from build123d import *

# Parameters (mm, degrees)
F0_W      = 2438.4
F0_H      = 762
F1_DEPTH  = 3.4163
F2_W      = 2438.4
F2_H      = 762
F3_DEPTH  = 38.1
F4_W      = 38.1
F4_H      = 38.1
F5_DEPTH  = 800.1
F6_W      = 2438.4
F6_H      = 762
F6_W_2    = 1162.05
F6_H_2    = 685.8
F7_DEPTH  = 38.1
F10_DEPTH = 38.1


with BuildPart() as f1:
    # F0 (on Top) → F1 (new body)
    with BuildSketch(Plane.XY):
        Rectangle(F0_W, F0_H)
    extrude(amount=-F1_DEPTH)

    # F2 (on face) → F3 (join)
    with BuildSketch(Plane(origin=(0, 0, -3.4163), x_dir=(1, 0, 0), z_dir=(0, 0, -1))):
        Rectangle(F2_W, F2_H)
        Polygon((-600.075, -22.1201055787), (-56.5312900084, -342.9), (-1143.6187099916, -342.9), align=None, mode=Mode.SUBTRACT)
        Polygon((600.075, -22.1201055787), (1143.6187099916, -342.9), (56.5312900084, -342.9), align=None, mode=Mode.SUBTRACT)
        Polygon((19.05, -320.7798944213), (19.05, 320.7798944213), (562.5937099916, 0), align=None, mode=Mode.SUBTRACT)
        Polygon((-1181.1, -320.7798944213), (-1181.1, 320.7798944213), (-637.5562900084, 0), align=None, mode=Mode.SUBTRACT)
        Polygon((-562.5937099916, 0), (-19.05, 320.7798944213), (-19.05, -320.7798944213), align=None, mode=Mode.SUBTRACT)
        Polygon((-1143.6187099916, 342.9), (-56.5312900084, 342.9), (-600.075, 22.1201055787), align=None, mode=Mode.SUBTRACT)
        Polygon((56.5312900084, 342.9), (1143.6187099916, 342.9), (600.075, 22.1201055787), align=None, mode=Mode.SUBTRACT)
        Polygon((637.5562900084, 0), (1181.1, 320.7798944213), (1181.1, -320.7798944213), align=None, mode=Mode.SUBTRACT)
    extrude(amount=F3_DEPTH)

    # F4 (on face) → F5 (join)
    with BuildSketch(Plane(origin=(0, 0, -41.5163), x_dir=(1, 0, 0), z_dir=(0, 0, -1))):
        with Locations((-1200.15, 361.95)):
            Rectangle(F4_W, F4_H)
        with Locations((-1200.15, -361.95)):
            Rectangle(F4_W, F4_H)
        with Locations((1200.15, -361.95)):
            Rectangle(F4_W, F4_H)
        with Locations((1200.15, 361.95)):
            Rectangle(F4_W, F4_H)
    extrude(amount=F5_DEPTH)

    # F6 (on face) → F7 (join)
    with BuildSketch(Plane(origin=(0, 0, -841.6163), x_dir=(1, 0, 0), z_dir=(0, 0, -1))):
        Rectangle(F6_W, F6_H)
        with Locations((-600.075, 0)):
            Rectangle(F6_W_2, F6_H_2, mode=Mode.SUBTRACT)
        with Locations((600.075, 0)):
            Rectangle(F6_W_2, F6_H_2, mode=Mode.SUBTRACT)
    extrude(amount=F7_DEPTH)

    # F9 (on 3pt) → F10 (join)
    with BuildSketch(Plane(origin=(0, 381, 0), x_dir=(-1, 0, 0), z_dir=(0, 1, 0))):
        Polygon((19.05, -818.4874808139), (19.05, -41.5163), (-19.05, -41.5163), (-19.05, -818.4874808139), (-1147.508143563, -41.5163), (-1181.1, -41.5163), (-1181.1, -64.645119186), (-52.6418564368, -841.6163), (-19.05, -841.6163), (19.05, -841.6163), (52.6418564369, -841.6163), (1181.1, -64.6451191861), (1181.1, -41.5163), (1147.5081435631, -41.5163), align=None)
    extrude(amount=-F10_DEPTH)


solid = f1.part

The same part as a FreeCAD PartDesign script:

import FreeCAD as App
import Part
import Sketcher
from FreeCAD import Vector
Q = App.Units.Quantity

doc = App.newDocument("Part")
body = doc.addObject("PartDesign::Body", "Body")

# Sketch on XY plane
sketch1 = body.newObject("Sketcher::SketchObject", "Sketch")
sketch1.AttachmentSupport = (doc.getObject("XY_Plane"), [""])
sketch1.MapMode = "FlatFace"
sketch1.addGeometry([
    Part.LineSegment(Vector(-1219, 381, 0), Vector(-1219, -381, 0)),
    Part.LineSegment(Vector(-1219, -381, 0), Vector(1219, -381, 0)),
    Part.LineSegment(Vector(1219, -381, 0), Vector(1219, 381, 0)),
    Part.LineSegment(Vector(1219, 381, 0), Vector(-1219, 381, 0)),
], False)
sketch1.addConstraint([
    Sketcher.Constraint("Coincident", 0, 2, 1, 1),
    Sketcher.Constraint("Coincident", 1, 2, 2, 1),
    Sketcher.Constraint("Coincident", 2, 2, 3, 1),
    Sketcher.Constraint("Coincident", 3, 2, 0, 1),
    Sketcher.Constraint("Vertical", 0),
    Sketcher.Constraint("Horizontal", 1),
    Sketcher.Constraint("Vertical", 2),
    Sketcher.Constraint("Horizontal", 3),
    Sketcher.Constraint("Symmetric", 0, 2, 2, 2, -1, 1),
    Sketcher.Constraint("DistanceX", 1, 1, 1, 2, Q("96 in")),
    Sketcher.Constraint("DistanceY", 0, 2, 0, 1, Q("30 in")),
])
pad1 = body.newObject("PartDesign::Pad", "Pad")
pad1.Profile = sketch1
pad1.Length = Q("0.1345 in")
pad1.Reversed = True

# Sketch on XY plane
sketch2 = body.newObject("Sketcher::SketchObject", "Sketch001")
sketch2.AttachmentSupport = (doc.getObject("XY_Plane"), [""])
sketch2.MapMode = "FlatFace"
sketch2.AttachmentOffset = App.Placement(Vector(0, 0, -0.1345 * 25.4), App.Rotation())
sketch2.addGeometry([
    Part.LineSegment(Vector(-1219, -381, 0), Vector(-1219, 381, 0)),  # 0
    Part.LineSegment(Vector(-1219, 381, 0), Vector(1219, 381, 0)),  # 1
    Part.LineSegment(Vector(1219, 381, 0), Vector(1219, -381, 0)),  # 2
    Part.LineSegment(Vector(1219, -381, 0), Vector(-1219, -381, 0)),  # 3
    Part.LineSegment(Vector(-1144, 343, 0), Vector(-600, 22, 0)),  # 4
    Part.LineSegment(Vector(-600, 22, 0), Vector(-57, 343, 0)),  # 5
    Part.LineSegment(Vector(-57, 343, 0), Vector(-1144, 343, 0)),  # 6
    Part.LineSegment(Vector(57, 343, 0), Vector(600, 22, 0)),  # 7
    Part.LineSegment(Vector(600, 22, 0), Vector(1144, 343, 0)),  # 8
    Part.LineSegment(Vector(1144, 343, 0), Vector(57, 343, 0)),  # 9
    Part.LineSegment(Vector(-638, 0, 0), Vector(-1181, 321, 0)),  # 10
    Part.LineSegment(Vector(-1181, 321, 0), Vector(-1181, -321, 0)),  # 11
    Part.LineSegment(Vector(-1181, -321, 0), Vector(-638, 0, 0)),  # 12
    Part.LineSegment(Vector(-19, 321, 0), Vector(-563, 0, 0)),  # 13
    Part.LineSegment(Vector(-563, 0, 0), Vector(-19, -321, 0)),  # 14
    Part.LineSegment(Vector(-19, -321, 0), Vector(-19, 321, 0)),  # 15
    Part.LineSegment(Vector(-600, -22, 0), Vector(-1144, -343, 0)),  # 16
    Part.LineSegment(Vector(-1144, -343, 0), Vector(-57, -343, 0)),  # 17
    Part.LineSegment(Vector(-57, -343, 0), Vector(-600, -22, 0)),  # 18
    Part.LineSegment(Vector(563, 0, 0), Vector(19, 321, 0)),  # 19
    Part.LineSegment(Vector(19, 321, 0), Vector(19, -321, 0)),  # 20
    Part.LineSegment(Vector(19, -321, 0), Vector(563, 0, 0)),  # 21
    Part.LineSegment(Vector(1181, 321, 0), Vector(638, 0, 0)),  # 22
    Part.LineSegment(Vector(638, 0, 0), Vector(1181, -321, 0)),  # 23
    Part.LineSegment(Vector(1181, -321, 0), Vector(1181, 321, 0)),  # 24
    Part.LineSegment(Vector(600, -22, 0), Vector(57, -343, 0)),  # 25
    Part.LineSegment(Vector(57, -343, 0), Vector(1144, -343, 0)),  # 26
    Part.LineSegment(Vector(1144, -343, 0), Vector(600, -22, 0)),  # 27
], False)
sketch2.addConstraint([
    Sketcher.Constraint("Coincident", 0, 2, 1, 1),
    Sketcher.Constraint("Coincident", 1, 2, 2, 1),
    Sketcher.Constraint("Coincident", 2, 2, 3, 1),
    Sketcher.Constraint("Coincident", 3, 2, 0, 1),
    Sketcher.Constraint("Coincident", 4, 2, 5, 1),
    Sketcher.Constraint("Coincident", 5, 2, 6, 1),
    Sketcher.Constraint("Coincident", 6, 2, 4, 1),
    Sketcher.Constraint("Coincident", 7, 2, 8, 1),
    Sketcher.Constraint("Coincident", 8, 2, 9, 1),
    Sketcher.Constraint("Coincident", 9, 2, 7, 1),
    Sketcher.Constraint("Coincident", 10, 2, 11, 1),
    Sketcher.Constraint("Coincident", 11, 2, 12, 1),
    Sketcher.Constraint("Coincident", 12, 2, 10, 1),
    Sketcher.Constraint("Coincident", 13, 2, 14, 1),
    Sketcher.Constraint("Coincident", 14, 2, 15, 1),
    Sketcher.Constraint("Coincident", 15, 2, 13, 1),
    Sketcher.Constraint("Coincident", 16, 2, 17, 1),
    Sketcher.Constraint("Coincident", 17, 2, 18, 1),
    Sketcher.Constraint("Coincident", 18, 2, 16, 1),
    Sketcher.Constraint("Coincident", 19, 2, 20, 1),
    Sketcher.Constraint("Coincident", 20, 2, 21, 1),
    Sketcher.Constraint("Coincident", 21, 2, 19, 1),
    Sketcher.Constraint("Coincident", 22, 2, 23, 1),
    Sketcher.Constraint("Coincident", 23, 2, 24, 1),
    Sketcher.Constraint("Coincident", 24, 2, 22, 1),
    Sketcher.Constraint("Coincident", 25, 2, 26, 1),
    Sketcher.Constraint("Coincident", 26, 2, 27, 1),
    Sketcher.Constraint("Coincident", 27, 2, 25, 1),
    Sketcher.Constraint("Vertical", 0),
    Sketcher.Constraint("Horizontal", 1),
    Sketcher.Constraint("Vertical", 2),
    Sketcher.Constraint("Horizontal", 3),
    Sketcher.Constraint("Horizontal", 6),
    Sketcher.Constraint("Horizontal", 9),
    Sketcher.Constraint("Vertical", 11),
    Sketcher.Constraint("Vertical", 15),
    Sketcher.Constraint("Horizontal", 17),
    Sketcher.Constraint("Vertical", 20),
    Sketcher.Constraint("Vertical", 24),
    Sketcher.Constraint("Horizontal", 26),
    Sketcher.Constraint("Symmetric", 0, 2, 2, 2, -1, 1),
    Sketcher.Constraint("Symmetric", 8, 2, 16, 2, -1, 1),
    Sketcher.Constraint("Symmetric", 7, 2, 18, 2, -1, 1),
    Sketcher.Constraint("Symmetric", 14, 2, 19, 2, -1, 1),
    Sketcher.Constraint("Symmetric", 13, 2, 21, 2, -1, 1),
    Sketcher.Constraint("Symmetric", 12, 2, 22, 2, -1, 1),
    Sketcher.Constraint("Symmetric", 10, 2, 23, 2, -1, 1),
    Sketcher.Constraint("Symmetric", 5, 2, 25, 2, -1, 1),
    Sketcher.Constraint("Symmetric", 4, 2, 27, 2, -1, 1),
    Sketcher.Constraint("Symmetric", 4, 2, 7, 2, -2),
    Sketcher.Constraint("Symmetric", 6, 2, 8, 2, -2),
    Sketcher.Constraint("PointOnObject", 12, 2, -1),
    Sketcher.Constraint("PointOnObject", 13, 2, -1),
    Sketcher.Constraint("Parallel", 4, 7),
    Sketcher.Constraint("Parallel", 5, 8),
    Sketcher.Constraint("Parallel", 7, 10),
    Sketcher.Constraint("Parallel", 8, 12),
    Sketcher.Constraint("Parallel", 12, 13),
    Sketcher.Constraint("Parallel", 10, 14),
    Sketcher.Constraint("Parallel", 14, 18),
    Sketcher.Constraint("Parallel", 16, 21),
    Sketcher.Constraint("Parallel", 21, 22),
    Sketcher.Constraint("Parallel", 23, 27),
    Sketcher.Constraint("Horizontal", 11, 2, 14, 2),
    Sketcher.Constraint("Equal", 8, 10),
    Sketcher.Constraint("DistanceX", 1, 1, 1, 2, Q("96 in")),
    Sketcher.Constraint("DistanceY", 0, 1, 0, 2, Q("30 in")),
    Sketcher.Constraint("DistanceY", -1, 1, 5, 2, Q("13.5 in")),
    Sketcher.Constraint("DistanceX", 10, 2, -1, 1, Q("46.5 in")),
    Sketcher.Constraint("DistanceX", 15, 2, 19, 2, Q("1.5 in")),
    Sketcher.Constraint("DistanceX", 4, 2, 7, 2, Q("47.25 in")),
    Sketcher.Constraint("DistanceX", 6, 2, 6, 1, 1087.08742),
    Sketcher.Constraint("DistanceY", 11, 2, 11, 1, 641.559789),
])
pad2 = body.newObject("PartDesign::Pad", "Pad001")
pad2.Profile = sketch2
pad2.Length = Q("1.5 in")
pad2.Reversed = True

# Sketch on XY plane
sketch3 = body.newObject("Sketcher::SketchObject", "Sketch002")
sketch3.AttachmentSupport = (doc.getObject("XY_Plane"), [""])
sketch3.MapMode = "FlatFace"
sketch3.AttachmentOffset = App.Placement(Vector(0, 0, -1.6345 * 25.4), App.Rotation())
sketch3.addGeometry([
    Part.LineSegment(Vector(-1219, -381, 0), Vector(-1219, -343, 0)),  # 0
    Part.LineSegment(Vector(-1219, -343, 0), Vector(-1181, -343, 0)),  # 1
    Part.LineSegment(Vector(-1181, -343, 0), Vector(-1181, -381, 0)),  # 2
    Part.LineSegment(Vector(-1181, -381, 0), Vector(-1219, -381, 0)),  # 3
    Part.LineSegment(Vector(-1219, 343, 0), Vector(-1219, 381, 0)),  # 4
    Part.LineSegment(Vector(-1219, 381, 0), Vector(-1181, 381, 0)),  # 5
    Part.LineSegment(Vector(-1181, 381, 0), Vector(-1181, 343, 0)),  # 6
    Part.LineSegment(Vector(-1181, 343, 0), Vector(-1219, 343, 0)),  # 7
    Part.LineSegment(Vector(1181, 343, 0), Vector(1181, 381, 0)),  # 8
    Part.LineSegment(Vector(1181, 381, 0), Vector(1219, 381, 0)),  # 9
    Part.LineSegment(Vector(1219, 381, 0), Vector(1219, 343, 0)),  # 10
    Part.LineSegment(Vector(1219, 343, 0), Vector(1181, 343, 0)),  # 11
    Part.LineSegment(Vector(1181, -381, 0), Vector(1181, -343, 0)),  # 12
    Part.LineSegment(Vector(1181, -343, 0), Vector(1219, -343, 0)),  # 13
    Part.LineSegment(Vector(1219, -343, 0), Vector(1219, -381, 0)),  # 14
    Part.LineSegment(Vector(1219, -381, 0), Vector(1181, -381, 0)),  # 15
], False)
sketch3.addConstraint([
    Sketcher.Constraint("Coincident", 0, 2, 1, 1),
    Sketcher.Constraint("Coincident", 1, 2, 2, 1),
    Sketcher.Constraint("Coincident", 2, 2, 3, 1),
    Sketcher.Constraint("Coincident", 3, 2, 0, 1),
    Sketcher.Constraint("Coincident", 4, 2, 5, 1),
    Sketcher.Constraint("Coincident", 5, 2, 6, 1),
    Sketcher.Constraint("Coincident", 6, 2, 7, 1),
    Sketcher.Constraint("Coincident", 7, 2, 4, 1),
    Sketcher.Constraint("Coincident", 8, 2, 9, 1),
    Sketcher.Constraint("Coincident", 9, 2, 10, 1),
    Sketcher.Constraint("Coincident", 10, 2, 11, 1),
    Sketcher.Constraint("Coincident", 11, 2, 8, 1),
    Sketcher.Constraint("Coincident", 12, 2, 13, 1),
    Sketcher.Constraint("Coincident", 13, 2, 14, 1),
    Sketcher.Constraint("Coincident", 14, 2, 15, 1),
    Sketcher.Constraint("Coincident", 15, 2, 12, 1),
    Sketcher.Constraint("Vertical", 0),
    Sketcher.Constraint("Horizontal", 1),
    Sketcher.Constraint("Vertical", 2),
    Sketcher.Constraint("Horizontal", 3),
    Sketcher.Constraint("Vertical", 4),
    Sketcher.Constraint("Horizontal", 5),
    Sketcher.Constraint("Vertical", 6),
    Sketcher.Constraint("Horizontal", 7),
    Sketcher.Constraint("Vertical", 8),
    Sketcher.Constraint("Horizontal", 9),
    Sketcher.Constraint("Vertical", 10),
    Sketcher.Constraint("Horizontal", 11),
    Sketcher.Constraint("Vertical", 12),
    Sketcher.Constraint("Horizontal", 13),
    Sketcher.Constraint("Vertical", 14),
    Sketcher.Constraint("Horizontal", 15),
    Sketcher.Constraint("Symmetric", 2, 2, 8, 2, -1, 1),
    Sketcher.Constraint("Symmetric", 0, 2, 10, 2, -1, 1),
    Sketcher.Constraint("Symmetric", 6, 2, 12, 2, -1, 1),
    Sketcher.Constraint("Symmetric", 4, 2, 14, 2, -1, 1),
    Sketcher.Constraint("Symmetric", 5, 2, 8, 2, -2),
    Sketcher.Constraint("Symmetric", 7, 2, 10, 2, -2),
    Sketcher.Constraint("Equal", 15, 0),
    Sketcher.Constraint("DistanceX", 1, 1, 1, 2, Q("1.5 in")),
    Sketcher.Constraint("DistanceX", 0, 2, -1, 1, Q("48 in")),
    Sketcher.Constraint("DistanceY", 2, 2, -1, 1, Q("15 in")),
])
pad3 = body.newObject("PartDesign::Pad", "Pad002")
pad3.Profile = sketch3
pad3.Length = Q("31.5 in")
pad3.Reversed = True

# Sketch on XY plane
sketch4 = body.newObject("Sketcher::SketchObject", "Sketch003")
sketch4.AttachmentSupport = (doc.getObject("XY_Plane"), [""])
sketch4.MapMode = "FlatFace"
sketch4.AttachmentOffset = App.Placement(Vector(0, 0, -33.1345 * 25.4), App.Rotation())
sketch4.addGeometry([
    Part.LineSegment(Vector(-1219, -381, 0), Vector(-1219, 381, 0)),  # 0
    Part.LineSegment(Vector(-1219, 381, 0), Vector(1219, 381, 0)),  # 1
    Part.LineSegment(Vector(1219, 381, 0), Vector(1219, -381, 0)),  # 2
    Part.LineSegment(Vector(1219, -381, 0), Vector(-1219, -381, 0)),  # 3
    Part.LineSegment(Vector(-19, 343, 0), Vector(-1181, 343, 0)),  # 4
    Part.LineSegment(Vector(-1181, 343, 0), Vector(-1181, -343, 0)),  # 5
    Part.LineSegment(Vector(-1181, -343, 0), Vector(-19, -343, 0)),  # 6
    Part.LineSegment(Vector(-19, -343, 0), Vector(-19, 343, 0)),  # 7
    Part.LineSegment(Vector(1181, 343, 0), Vector(19, 343, 0)),  # 8
    Part.LineSegment(Vector(19, 343, 0), Vector(19, -343, 0)),  # 9
    Part.LineSegment(Vector(19, -343, 0), Vector(1181, -343, 0)),  # 10
    Part.LineSegment(Vector(1181, -343, 0), Vector(1181, 343, 0)),  # 11
], False)
sketch4.addConstraint([
    Sketcher.Constraint("Coincident", 0, 2, 1, 1),
    Sketcher.Constraint("Coincident", 1, 2, 2, 1),
    Sketcher.Constraint("Coincident", 2, 2, 3, 1),
    Sketcher.Constraint("Coincident", 3, 2, 0, 1),
    Sketcher.Constraint("Coincident", 4, 2, 5, 1),
    Sketcher.Constraint("Coincident", 5, 2, 6, 1),
    Sketcher.Constraint("Coincident", 6, 2, 7, 1),
    Sketcher.Constraint("Coincident", 7, 2, 4, 1),
    Sketcher.Constraint("Coincident", 8, 2, 9, 1),
    Sketcher.Constraint("Coincident", 9, 2, 10, 1),
    Sketcher.Constraint("Coincident", 10, 2, 11, 1),
    Sketcher.Constraint("Coincident", 11, 2, 8, 1),
    Sketcher.Constraint("Vertical", 0),
    Sketcher.Constraint("Horizontal", 1),
    Sketcher.Constraint("Vertical", 2),
    Sketcher.Constraint("Horizontal", 3),
    Sketcher.Constraint("Horizontal", 4),
    Sketcher.Constraint("Vertical", 5),
    Sketcher.Constraint("Horizontal", 6),
    Sketcher.Constraint("Vertical", 7),
    Sketcher.Constraint("Horizontal", 8),
    Sketcher.Constraint("Vertical", 9),
    Sketcher.Constraint("Horizontal", 10),
    Sketcher.Constraint("Vertical", 11),
    Sketcher.Constraint("Symmetric", 0, 2, 2, 2, -1, 1),
    Sketcher.Constraint("Symmetric", 6, 2, 8, 2, -1, 1),
    Sketcher.Constraint("Symmetric", 4, 2, 10, 2, -1, 1),
    Sketcher.Constraint("Horizontal", 7, 2, 8, 2),
    Sketcher.Constraint("DistanceX", 1, 1, 1, 2, Q("96 in")),
    Sketcher.Constraint("DistanceY", 0, 1, 0, 2, Q("30 in")),
    Sketcher.Constraint("DistanceY", 5, 2, 5, 1, Q("27 in")),
    Sketcher.Constraint("DistanceX", 4, 2, 4, 1, Q("45.75 in")),
    Sketcher.Constraint("DistanceX", 4, 2, -1, 1, Q("46.5 in")),
])
pad4 = body.newObject("PartDesign::Pad", "Pad003")
pad4.Profile = sketch4
pad4.Length = Q("1.5 in")
pad4.Reversed = True

# Sketch on XZ plane
sketch5 = body.newObject("Sketcher::SketchObject", "Sketch004")
sketch5.AttachmentSupport = (doc.getObject("XZ_Plane"), [""])
sketch5.MapMode = "FlatFace"
sketch5.AttachmentOffset = App.Placement(Vector(0, 0, -15 * 25.4), App.Rotation())
sketch5.addGeometry([
    Part.LineSegment(Vector(-19, -818, 0), Vector(-19, -42, 0)),  # 0
    Part.LineSegment(Vector(-19, -42, 0), Vector(19, -42, 0)),  # 1
    Part.LineSegment(Vector(19, -42, 0), Vector(19, -818, 0)),  # 2
    Part.LineSegment(Vector(19, -818, 0), Vector(1148, -42, 0)),  # 3
    Part.LineSegment(Vector(1148, -42, 0), Vector(1181, -42, 0)),  # 4
    Part.LineSegment(Vector(1181, -42, 0), Vector(1181, -65, 0)),  # 5
    Part.LineSegment(Vector(1181, -65, 0), Vector(53, -842, 0)),  # 6
    Part.LineSegment(Vector(53, -842, 0), Vector(-53, -842, 0)),  # 7
    Part.LineSegment(Vector(-53, -842, 0), Vector(-1181, -65, 0)),  # 8
    Part.LineSegment(Vector(-1181, -65, 0), Vector(-1181, -42, 0)),  # 9
    Part.LineSegment(Vector(-1181, -42, 0), Vector(-1148, -42, 0)),  # 10
    Part.LineSegment(Vector(-1148, -42, 0), Vector(-19, -818, 0)),  # 11
], False)
sketch5.addConstraint([
    Sketcher.Constraint("Coincident", 0, 2, 1, 1),
    Sketcher.Constraint("Coincident", 1, 2, 2, 1),
    Sketcher.Constraint("Coincident", 2, 2, 3, 1),
    Sketcher.Constraint("Coincident", 3, 2, 4, 1),
    Sketcher.Constraint("Coincident", 4, 2, 5, 1),
    Sketcher.Constraint("Coincident", 5, 2, 6, 1),
    Sketcher.Constraint("Coincident", 6, 2, 7, 1),
    Sketcher.Constraint("Coincident", 7, 2, 8, 1),
    Sketcher.Constraint("Coincident", 8, 2, 9, 1),
    Sketcher.Constraint("Coincident", 9, 2, 10, 1),
    Sketcher.Constraint("Coincident", 10, 2, 11, 1),
    Sketcher.Constraint("Coincident", 11, 2, 0, 1),
    Sketcher.Constraint("Vertical", 0),
    Sketcher.Constraint("Horizontal", 1),
    Sketcher.Constraint("Vertical", 2),
    Sketcher.Constraint("Horizontal", 4),
    Sketcher.Constraint("Vertical", 5),
    Sketcher.Constraint("Horizontal", 7),
    Sketcher.Constraint("Vertical", 9),
    Sketcher.Constraint("Horizontal", 10),
    Sketcher.Constraint("Symmetric", 5, 2, 8, 2, -2),
    Sketcher.Constraint("Symmetric", 3, 2, 10, 2, -2),
    Sketcher.Constraint("Symmetric", 2, 2, 11, 2, -2),
    Sketcher.Constraint("Parallel", 3, 6),
    Sketcher.Constraint("Parallel", 8, 11),
    Sketcher.Constraint("Horizontal", 1, 2, 3, 2),
    Sketcher.Constraint("Equal", 3, 6),
    Sketcher.Constraint("DistanceX", 1, 1, 1, 2, Q("1.5 in")),
    Sketcher.Constraint("DistanceX", -1, 1, 4, 2, Q("46.5 in")),
    Sketcher.Constraint("DistanceY", 6, 2, 1, 2, Q("31.5 in")),
    Sketcher.Constraint("DistanceY", 0, 2, -1, 1, Q("1.6345 in")),
    Sketcher.Constraint("DistanceY", 0, 1, 0, 2, 776.971181),
    Sketcher.Constraint("Distance", 3, 1370.07372),
])
pad5 = body.newObject("PartDesign::Pad", "Pad004")
pad5.Profile = sketch5
pad5.Length = Q("1.5 in")

doc.recompute()
